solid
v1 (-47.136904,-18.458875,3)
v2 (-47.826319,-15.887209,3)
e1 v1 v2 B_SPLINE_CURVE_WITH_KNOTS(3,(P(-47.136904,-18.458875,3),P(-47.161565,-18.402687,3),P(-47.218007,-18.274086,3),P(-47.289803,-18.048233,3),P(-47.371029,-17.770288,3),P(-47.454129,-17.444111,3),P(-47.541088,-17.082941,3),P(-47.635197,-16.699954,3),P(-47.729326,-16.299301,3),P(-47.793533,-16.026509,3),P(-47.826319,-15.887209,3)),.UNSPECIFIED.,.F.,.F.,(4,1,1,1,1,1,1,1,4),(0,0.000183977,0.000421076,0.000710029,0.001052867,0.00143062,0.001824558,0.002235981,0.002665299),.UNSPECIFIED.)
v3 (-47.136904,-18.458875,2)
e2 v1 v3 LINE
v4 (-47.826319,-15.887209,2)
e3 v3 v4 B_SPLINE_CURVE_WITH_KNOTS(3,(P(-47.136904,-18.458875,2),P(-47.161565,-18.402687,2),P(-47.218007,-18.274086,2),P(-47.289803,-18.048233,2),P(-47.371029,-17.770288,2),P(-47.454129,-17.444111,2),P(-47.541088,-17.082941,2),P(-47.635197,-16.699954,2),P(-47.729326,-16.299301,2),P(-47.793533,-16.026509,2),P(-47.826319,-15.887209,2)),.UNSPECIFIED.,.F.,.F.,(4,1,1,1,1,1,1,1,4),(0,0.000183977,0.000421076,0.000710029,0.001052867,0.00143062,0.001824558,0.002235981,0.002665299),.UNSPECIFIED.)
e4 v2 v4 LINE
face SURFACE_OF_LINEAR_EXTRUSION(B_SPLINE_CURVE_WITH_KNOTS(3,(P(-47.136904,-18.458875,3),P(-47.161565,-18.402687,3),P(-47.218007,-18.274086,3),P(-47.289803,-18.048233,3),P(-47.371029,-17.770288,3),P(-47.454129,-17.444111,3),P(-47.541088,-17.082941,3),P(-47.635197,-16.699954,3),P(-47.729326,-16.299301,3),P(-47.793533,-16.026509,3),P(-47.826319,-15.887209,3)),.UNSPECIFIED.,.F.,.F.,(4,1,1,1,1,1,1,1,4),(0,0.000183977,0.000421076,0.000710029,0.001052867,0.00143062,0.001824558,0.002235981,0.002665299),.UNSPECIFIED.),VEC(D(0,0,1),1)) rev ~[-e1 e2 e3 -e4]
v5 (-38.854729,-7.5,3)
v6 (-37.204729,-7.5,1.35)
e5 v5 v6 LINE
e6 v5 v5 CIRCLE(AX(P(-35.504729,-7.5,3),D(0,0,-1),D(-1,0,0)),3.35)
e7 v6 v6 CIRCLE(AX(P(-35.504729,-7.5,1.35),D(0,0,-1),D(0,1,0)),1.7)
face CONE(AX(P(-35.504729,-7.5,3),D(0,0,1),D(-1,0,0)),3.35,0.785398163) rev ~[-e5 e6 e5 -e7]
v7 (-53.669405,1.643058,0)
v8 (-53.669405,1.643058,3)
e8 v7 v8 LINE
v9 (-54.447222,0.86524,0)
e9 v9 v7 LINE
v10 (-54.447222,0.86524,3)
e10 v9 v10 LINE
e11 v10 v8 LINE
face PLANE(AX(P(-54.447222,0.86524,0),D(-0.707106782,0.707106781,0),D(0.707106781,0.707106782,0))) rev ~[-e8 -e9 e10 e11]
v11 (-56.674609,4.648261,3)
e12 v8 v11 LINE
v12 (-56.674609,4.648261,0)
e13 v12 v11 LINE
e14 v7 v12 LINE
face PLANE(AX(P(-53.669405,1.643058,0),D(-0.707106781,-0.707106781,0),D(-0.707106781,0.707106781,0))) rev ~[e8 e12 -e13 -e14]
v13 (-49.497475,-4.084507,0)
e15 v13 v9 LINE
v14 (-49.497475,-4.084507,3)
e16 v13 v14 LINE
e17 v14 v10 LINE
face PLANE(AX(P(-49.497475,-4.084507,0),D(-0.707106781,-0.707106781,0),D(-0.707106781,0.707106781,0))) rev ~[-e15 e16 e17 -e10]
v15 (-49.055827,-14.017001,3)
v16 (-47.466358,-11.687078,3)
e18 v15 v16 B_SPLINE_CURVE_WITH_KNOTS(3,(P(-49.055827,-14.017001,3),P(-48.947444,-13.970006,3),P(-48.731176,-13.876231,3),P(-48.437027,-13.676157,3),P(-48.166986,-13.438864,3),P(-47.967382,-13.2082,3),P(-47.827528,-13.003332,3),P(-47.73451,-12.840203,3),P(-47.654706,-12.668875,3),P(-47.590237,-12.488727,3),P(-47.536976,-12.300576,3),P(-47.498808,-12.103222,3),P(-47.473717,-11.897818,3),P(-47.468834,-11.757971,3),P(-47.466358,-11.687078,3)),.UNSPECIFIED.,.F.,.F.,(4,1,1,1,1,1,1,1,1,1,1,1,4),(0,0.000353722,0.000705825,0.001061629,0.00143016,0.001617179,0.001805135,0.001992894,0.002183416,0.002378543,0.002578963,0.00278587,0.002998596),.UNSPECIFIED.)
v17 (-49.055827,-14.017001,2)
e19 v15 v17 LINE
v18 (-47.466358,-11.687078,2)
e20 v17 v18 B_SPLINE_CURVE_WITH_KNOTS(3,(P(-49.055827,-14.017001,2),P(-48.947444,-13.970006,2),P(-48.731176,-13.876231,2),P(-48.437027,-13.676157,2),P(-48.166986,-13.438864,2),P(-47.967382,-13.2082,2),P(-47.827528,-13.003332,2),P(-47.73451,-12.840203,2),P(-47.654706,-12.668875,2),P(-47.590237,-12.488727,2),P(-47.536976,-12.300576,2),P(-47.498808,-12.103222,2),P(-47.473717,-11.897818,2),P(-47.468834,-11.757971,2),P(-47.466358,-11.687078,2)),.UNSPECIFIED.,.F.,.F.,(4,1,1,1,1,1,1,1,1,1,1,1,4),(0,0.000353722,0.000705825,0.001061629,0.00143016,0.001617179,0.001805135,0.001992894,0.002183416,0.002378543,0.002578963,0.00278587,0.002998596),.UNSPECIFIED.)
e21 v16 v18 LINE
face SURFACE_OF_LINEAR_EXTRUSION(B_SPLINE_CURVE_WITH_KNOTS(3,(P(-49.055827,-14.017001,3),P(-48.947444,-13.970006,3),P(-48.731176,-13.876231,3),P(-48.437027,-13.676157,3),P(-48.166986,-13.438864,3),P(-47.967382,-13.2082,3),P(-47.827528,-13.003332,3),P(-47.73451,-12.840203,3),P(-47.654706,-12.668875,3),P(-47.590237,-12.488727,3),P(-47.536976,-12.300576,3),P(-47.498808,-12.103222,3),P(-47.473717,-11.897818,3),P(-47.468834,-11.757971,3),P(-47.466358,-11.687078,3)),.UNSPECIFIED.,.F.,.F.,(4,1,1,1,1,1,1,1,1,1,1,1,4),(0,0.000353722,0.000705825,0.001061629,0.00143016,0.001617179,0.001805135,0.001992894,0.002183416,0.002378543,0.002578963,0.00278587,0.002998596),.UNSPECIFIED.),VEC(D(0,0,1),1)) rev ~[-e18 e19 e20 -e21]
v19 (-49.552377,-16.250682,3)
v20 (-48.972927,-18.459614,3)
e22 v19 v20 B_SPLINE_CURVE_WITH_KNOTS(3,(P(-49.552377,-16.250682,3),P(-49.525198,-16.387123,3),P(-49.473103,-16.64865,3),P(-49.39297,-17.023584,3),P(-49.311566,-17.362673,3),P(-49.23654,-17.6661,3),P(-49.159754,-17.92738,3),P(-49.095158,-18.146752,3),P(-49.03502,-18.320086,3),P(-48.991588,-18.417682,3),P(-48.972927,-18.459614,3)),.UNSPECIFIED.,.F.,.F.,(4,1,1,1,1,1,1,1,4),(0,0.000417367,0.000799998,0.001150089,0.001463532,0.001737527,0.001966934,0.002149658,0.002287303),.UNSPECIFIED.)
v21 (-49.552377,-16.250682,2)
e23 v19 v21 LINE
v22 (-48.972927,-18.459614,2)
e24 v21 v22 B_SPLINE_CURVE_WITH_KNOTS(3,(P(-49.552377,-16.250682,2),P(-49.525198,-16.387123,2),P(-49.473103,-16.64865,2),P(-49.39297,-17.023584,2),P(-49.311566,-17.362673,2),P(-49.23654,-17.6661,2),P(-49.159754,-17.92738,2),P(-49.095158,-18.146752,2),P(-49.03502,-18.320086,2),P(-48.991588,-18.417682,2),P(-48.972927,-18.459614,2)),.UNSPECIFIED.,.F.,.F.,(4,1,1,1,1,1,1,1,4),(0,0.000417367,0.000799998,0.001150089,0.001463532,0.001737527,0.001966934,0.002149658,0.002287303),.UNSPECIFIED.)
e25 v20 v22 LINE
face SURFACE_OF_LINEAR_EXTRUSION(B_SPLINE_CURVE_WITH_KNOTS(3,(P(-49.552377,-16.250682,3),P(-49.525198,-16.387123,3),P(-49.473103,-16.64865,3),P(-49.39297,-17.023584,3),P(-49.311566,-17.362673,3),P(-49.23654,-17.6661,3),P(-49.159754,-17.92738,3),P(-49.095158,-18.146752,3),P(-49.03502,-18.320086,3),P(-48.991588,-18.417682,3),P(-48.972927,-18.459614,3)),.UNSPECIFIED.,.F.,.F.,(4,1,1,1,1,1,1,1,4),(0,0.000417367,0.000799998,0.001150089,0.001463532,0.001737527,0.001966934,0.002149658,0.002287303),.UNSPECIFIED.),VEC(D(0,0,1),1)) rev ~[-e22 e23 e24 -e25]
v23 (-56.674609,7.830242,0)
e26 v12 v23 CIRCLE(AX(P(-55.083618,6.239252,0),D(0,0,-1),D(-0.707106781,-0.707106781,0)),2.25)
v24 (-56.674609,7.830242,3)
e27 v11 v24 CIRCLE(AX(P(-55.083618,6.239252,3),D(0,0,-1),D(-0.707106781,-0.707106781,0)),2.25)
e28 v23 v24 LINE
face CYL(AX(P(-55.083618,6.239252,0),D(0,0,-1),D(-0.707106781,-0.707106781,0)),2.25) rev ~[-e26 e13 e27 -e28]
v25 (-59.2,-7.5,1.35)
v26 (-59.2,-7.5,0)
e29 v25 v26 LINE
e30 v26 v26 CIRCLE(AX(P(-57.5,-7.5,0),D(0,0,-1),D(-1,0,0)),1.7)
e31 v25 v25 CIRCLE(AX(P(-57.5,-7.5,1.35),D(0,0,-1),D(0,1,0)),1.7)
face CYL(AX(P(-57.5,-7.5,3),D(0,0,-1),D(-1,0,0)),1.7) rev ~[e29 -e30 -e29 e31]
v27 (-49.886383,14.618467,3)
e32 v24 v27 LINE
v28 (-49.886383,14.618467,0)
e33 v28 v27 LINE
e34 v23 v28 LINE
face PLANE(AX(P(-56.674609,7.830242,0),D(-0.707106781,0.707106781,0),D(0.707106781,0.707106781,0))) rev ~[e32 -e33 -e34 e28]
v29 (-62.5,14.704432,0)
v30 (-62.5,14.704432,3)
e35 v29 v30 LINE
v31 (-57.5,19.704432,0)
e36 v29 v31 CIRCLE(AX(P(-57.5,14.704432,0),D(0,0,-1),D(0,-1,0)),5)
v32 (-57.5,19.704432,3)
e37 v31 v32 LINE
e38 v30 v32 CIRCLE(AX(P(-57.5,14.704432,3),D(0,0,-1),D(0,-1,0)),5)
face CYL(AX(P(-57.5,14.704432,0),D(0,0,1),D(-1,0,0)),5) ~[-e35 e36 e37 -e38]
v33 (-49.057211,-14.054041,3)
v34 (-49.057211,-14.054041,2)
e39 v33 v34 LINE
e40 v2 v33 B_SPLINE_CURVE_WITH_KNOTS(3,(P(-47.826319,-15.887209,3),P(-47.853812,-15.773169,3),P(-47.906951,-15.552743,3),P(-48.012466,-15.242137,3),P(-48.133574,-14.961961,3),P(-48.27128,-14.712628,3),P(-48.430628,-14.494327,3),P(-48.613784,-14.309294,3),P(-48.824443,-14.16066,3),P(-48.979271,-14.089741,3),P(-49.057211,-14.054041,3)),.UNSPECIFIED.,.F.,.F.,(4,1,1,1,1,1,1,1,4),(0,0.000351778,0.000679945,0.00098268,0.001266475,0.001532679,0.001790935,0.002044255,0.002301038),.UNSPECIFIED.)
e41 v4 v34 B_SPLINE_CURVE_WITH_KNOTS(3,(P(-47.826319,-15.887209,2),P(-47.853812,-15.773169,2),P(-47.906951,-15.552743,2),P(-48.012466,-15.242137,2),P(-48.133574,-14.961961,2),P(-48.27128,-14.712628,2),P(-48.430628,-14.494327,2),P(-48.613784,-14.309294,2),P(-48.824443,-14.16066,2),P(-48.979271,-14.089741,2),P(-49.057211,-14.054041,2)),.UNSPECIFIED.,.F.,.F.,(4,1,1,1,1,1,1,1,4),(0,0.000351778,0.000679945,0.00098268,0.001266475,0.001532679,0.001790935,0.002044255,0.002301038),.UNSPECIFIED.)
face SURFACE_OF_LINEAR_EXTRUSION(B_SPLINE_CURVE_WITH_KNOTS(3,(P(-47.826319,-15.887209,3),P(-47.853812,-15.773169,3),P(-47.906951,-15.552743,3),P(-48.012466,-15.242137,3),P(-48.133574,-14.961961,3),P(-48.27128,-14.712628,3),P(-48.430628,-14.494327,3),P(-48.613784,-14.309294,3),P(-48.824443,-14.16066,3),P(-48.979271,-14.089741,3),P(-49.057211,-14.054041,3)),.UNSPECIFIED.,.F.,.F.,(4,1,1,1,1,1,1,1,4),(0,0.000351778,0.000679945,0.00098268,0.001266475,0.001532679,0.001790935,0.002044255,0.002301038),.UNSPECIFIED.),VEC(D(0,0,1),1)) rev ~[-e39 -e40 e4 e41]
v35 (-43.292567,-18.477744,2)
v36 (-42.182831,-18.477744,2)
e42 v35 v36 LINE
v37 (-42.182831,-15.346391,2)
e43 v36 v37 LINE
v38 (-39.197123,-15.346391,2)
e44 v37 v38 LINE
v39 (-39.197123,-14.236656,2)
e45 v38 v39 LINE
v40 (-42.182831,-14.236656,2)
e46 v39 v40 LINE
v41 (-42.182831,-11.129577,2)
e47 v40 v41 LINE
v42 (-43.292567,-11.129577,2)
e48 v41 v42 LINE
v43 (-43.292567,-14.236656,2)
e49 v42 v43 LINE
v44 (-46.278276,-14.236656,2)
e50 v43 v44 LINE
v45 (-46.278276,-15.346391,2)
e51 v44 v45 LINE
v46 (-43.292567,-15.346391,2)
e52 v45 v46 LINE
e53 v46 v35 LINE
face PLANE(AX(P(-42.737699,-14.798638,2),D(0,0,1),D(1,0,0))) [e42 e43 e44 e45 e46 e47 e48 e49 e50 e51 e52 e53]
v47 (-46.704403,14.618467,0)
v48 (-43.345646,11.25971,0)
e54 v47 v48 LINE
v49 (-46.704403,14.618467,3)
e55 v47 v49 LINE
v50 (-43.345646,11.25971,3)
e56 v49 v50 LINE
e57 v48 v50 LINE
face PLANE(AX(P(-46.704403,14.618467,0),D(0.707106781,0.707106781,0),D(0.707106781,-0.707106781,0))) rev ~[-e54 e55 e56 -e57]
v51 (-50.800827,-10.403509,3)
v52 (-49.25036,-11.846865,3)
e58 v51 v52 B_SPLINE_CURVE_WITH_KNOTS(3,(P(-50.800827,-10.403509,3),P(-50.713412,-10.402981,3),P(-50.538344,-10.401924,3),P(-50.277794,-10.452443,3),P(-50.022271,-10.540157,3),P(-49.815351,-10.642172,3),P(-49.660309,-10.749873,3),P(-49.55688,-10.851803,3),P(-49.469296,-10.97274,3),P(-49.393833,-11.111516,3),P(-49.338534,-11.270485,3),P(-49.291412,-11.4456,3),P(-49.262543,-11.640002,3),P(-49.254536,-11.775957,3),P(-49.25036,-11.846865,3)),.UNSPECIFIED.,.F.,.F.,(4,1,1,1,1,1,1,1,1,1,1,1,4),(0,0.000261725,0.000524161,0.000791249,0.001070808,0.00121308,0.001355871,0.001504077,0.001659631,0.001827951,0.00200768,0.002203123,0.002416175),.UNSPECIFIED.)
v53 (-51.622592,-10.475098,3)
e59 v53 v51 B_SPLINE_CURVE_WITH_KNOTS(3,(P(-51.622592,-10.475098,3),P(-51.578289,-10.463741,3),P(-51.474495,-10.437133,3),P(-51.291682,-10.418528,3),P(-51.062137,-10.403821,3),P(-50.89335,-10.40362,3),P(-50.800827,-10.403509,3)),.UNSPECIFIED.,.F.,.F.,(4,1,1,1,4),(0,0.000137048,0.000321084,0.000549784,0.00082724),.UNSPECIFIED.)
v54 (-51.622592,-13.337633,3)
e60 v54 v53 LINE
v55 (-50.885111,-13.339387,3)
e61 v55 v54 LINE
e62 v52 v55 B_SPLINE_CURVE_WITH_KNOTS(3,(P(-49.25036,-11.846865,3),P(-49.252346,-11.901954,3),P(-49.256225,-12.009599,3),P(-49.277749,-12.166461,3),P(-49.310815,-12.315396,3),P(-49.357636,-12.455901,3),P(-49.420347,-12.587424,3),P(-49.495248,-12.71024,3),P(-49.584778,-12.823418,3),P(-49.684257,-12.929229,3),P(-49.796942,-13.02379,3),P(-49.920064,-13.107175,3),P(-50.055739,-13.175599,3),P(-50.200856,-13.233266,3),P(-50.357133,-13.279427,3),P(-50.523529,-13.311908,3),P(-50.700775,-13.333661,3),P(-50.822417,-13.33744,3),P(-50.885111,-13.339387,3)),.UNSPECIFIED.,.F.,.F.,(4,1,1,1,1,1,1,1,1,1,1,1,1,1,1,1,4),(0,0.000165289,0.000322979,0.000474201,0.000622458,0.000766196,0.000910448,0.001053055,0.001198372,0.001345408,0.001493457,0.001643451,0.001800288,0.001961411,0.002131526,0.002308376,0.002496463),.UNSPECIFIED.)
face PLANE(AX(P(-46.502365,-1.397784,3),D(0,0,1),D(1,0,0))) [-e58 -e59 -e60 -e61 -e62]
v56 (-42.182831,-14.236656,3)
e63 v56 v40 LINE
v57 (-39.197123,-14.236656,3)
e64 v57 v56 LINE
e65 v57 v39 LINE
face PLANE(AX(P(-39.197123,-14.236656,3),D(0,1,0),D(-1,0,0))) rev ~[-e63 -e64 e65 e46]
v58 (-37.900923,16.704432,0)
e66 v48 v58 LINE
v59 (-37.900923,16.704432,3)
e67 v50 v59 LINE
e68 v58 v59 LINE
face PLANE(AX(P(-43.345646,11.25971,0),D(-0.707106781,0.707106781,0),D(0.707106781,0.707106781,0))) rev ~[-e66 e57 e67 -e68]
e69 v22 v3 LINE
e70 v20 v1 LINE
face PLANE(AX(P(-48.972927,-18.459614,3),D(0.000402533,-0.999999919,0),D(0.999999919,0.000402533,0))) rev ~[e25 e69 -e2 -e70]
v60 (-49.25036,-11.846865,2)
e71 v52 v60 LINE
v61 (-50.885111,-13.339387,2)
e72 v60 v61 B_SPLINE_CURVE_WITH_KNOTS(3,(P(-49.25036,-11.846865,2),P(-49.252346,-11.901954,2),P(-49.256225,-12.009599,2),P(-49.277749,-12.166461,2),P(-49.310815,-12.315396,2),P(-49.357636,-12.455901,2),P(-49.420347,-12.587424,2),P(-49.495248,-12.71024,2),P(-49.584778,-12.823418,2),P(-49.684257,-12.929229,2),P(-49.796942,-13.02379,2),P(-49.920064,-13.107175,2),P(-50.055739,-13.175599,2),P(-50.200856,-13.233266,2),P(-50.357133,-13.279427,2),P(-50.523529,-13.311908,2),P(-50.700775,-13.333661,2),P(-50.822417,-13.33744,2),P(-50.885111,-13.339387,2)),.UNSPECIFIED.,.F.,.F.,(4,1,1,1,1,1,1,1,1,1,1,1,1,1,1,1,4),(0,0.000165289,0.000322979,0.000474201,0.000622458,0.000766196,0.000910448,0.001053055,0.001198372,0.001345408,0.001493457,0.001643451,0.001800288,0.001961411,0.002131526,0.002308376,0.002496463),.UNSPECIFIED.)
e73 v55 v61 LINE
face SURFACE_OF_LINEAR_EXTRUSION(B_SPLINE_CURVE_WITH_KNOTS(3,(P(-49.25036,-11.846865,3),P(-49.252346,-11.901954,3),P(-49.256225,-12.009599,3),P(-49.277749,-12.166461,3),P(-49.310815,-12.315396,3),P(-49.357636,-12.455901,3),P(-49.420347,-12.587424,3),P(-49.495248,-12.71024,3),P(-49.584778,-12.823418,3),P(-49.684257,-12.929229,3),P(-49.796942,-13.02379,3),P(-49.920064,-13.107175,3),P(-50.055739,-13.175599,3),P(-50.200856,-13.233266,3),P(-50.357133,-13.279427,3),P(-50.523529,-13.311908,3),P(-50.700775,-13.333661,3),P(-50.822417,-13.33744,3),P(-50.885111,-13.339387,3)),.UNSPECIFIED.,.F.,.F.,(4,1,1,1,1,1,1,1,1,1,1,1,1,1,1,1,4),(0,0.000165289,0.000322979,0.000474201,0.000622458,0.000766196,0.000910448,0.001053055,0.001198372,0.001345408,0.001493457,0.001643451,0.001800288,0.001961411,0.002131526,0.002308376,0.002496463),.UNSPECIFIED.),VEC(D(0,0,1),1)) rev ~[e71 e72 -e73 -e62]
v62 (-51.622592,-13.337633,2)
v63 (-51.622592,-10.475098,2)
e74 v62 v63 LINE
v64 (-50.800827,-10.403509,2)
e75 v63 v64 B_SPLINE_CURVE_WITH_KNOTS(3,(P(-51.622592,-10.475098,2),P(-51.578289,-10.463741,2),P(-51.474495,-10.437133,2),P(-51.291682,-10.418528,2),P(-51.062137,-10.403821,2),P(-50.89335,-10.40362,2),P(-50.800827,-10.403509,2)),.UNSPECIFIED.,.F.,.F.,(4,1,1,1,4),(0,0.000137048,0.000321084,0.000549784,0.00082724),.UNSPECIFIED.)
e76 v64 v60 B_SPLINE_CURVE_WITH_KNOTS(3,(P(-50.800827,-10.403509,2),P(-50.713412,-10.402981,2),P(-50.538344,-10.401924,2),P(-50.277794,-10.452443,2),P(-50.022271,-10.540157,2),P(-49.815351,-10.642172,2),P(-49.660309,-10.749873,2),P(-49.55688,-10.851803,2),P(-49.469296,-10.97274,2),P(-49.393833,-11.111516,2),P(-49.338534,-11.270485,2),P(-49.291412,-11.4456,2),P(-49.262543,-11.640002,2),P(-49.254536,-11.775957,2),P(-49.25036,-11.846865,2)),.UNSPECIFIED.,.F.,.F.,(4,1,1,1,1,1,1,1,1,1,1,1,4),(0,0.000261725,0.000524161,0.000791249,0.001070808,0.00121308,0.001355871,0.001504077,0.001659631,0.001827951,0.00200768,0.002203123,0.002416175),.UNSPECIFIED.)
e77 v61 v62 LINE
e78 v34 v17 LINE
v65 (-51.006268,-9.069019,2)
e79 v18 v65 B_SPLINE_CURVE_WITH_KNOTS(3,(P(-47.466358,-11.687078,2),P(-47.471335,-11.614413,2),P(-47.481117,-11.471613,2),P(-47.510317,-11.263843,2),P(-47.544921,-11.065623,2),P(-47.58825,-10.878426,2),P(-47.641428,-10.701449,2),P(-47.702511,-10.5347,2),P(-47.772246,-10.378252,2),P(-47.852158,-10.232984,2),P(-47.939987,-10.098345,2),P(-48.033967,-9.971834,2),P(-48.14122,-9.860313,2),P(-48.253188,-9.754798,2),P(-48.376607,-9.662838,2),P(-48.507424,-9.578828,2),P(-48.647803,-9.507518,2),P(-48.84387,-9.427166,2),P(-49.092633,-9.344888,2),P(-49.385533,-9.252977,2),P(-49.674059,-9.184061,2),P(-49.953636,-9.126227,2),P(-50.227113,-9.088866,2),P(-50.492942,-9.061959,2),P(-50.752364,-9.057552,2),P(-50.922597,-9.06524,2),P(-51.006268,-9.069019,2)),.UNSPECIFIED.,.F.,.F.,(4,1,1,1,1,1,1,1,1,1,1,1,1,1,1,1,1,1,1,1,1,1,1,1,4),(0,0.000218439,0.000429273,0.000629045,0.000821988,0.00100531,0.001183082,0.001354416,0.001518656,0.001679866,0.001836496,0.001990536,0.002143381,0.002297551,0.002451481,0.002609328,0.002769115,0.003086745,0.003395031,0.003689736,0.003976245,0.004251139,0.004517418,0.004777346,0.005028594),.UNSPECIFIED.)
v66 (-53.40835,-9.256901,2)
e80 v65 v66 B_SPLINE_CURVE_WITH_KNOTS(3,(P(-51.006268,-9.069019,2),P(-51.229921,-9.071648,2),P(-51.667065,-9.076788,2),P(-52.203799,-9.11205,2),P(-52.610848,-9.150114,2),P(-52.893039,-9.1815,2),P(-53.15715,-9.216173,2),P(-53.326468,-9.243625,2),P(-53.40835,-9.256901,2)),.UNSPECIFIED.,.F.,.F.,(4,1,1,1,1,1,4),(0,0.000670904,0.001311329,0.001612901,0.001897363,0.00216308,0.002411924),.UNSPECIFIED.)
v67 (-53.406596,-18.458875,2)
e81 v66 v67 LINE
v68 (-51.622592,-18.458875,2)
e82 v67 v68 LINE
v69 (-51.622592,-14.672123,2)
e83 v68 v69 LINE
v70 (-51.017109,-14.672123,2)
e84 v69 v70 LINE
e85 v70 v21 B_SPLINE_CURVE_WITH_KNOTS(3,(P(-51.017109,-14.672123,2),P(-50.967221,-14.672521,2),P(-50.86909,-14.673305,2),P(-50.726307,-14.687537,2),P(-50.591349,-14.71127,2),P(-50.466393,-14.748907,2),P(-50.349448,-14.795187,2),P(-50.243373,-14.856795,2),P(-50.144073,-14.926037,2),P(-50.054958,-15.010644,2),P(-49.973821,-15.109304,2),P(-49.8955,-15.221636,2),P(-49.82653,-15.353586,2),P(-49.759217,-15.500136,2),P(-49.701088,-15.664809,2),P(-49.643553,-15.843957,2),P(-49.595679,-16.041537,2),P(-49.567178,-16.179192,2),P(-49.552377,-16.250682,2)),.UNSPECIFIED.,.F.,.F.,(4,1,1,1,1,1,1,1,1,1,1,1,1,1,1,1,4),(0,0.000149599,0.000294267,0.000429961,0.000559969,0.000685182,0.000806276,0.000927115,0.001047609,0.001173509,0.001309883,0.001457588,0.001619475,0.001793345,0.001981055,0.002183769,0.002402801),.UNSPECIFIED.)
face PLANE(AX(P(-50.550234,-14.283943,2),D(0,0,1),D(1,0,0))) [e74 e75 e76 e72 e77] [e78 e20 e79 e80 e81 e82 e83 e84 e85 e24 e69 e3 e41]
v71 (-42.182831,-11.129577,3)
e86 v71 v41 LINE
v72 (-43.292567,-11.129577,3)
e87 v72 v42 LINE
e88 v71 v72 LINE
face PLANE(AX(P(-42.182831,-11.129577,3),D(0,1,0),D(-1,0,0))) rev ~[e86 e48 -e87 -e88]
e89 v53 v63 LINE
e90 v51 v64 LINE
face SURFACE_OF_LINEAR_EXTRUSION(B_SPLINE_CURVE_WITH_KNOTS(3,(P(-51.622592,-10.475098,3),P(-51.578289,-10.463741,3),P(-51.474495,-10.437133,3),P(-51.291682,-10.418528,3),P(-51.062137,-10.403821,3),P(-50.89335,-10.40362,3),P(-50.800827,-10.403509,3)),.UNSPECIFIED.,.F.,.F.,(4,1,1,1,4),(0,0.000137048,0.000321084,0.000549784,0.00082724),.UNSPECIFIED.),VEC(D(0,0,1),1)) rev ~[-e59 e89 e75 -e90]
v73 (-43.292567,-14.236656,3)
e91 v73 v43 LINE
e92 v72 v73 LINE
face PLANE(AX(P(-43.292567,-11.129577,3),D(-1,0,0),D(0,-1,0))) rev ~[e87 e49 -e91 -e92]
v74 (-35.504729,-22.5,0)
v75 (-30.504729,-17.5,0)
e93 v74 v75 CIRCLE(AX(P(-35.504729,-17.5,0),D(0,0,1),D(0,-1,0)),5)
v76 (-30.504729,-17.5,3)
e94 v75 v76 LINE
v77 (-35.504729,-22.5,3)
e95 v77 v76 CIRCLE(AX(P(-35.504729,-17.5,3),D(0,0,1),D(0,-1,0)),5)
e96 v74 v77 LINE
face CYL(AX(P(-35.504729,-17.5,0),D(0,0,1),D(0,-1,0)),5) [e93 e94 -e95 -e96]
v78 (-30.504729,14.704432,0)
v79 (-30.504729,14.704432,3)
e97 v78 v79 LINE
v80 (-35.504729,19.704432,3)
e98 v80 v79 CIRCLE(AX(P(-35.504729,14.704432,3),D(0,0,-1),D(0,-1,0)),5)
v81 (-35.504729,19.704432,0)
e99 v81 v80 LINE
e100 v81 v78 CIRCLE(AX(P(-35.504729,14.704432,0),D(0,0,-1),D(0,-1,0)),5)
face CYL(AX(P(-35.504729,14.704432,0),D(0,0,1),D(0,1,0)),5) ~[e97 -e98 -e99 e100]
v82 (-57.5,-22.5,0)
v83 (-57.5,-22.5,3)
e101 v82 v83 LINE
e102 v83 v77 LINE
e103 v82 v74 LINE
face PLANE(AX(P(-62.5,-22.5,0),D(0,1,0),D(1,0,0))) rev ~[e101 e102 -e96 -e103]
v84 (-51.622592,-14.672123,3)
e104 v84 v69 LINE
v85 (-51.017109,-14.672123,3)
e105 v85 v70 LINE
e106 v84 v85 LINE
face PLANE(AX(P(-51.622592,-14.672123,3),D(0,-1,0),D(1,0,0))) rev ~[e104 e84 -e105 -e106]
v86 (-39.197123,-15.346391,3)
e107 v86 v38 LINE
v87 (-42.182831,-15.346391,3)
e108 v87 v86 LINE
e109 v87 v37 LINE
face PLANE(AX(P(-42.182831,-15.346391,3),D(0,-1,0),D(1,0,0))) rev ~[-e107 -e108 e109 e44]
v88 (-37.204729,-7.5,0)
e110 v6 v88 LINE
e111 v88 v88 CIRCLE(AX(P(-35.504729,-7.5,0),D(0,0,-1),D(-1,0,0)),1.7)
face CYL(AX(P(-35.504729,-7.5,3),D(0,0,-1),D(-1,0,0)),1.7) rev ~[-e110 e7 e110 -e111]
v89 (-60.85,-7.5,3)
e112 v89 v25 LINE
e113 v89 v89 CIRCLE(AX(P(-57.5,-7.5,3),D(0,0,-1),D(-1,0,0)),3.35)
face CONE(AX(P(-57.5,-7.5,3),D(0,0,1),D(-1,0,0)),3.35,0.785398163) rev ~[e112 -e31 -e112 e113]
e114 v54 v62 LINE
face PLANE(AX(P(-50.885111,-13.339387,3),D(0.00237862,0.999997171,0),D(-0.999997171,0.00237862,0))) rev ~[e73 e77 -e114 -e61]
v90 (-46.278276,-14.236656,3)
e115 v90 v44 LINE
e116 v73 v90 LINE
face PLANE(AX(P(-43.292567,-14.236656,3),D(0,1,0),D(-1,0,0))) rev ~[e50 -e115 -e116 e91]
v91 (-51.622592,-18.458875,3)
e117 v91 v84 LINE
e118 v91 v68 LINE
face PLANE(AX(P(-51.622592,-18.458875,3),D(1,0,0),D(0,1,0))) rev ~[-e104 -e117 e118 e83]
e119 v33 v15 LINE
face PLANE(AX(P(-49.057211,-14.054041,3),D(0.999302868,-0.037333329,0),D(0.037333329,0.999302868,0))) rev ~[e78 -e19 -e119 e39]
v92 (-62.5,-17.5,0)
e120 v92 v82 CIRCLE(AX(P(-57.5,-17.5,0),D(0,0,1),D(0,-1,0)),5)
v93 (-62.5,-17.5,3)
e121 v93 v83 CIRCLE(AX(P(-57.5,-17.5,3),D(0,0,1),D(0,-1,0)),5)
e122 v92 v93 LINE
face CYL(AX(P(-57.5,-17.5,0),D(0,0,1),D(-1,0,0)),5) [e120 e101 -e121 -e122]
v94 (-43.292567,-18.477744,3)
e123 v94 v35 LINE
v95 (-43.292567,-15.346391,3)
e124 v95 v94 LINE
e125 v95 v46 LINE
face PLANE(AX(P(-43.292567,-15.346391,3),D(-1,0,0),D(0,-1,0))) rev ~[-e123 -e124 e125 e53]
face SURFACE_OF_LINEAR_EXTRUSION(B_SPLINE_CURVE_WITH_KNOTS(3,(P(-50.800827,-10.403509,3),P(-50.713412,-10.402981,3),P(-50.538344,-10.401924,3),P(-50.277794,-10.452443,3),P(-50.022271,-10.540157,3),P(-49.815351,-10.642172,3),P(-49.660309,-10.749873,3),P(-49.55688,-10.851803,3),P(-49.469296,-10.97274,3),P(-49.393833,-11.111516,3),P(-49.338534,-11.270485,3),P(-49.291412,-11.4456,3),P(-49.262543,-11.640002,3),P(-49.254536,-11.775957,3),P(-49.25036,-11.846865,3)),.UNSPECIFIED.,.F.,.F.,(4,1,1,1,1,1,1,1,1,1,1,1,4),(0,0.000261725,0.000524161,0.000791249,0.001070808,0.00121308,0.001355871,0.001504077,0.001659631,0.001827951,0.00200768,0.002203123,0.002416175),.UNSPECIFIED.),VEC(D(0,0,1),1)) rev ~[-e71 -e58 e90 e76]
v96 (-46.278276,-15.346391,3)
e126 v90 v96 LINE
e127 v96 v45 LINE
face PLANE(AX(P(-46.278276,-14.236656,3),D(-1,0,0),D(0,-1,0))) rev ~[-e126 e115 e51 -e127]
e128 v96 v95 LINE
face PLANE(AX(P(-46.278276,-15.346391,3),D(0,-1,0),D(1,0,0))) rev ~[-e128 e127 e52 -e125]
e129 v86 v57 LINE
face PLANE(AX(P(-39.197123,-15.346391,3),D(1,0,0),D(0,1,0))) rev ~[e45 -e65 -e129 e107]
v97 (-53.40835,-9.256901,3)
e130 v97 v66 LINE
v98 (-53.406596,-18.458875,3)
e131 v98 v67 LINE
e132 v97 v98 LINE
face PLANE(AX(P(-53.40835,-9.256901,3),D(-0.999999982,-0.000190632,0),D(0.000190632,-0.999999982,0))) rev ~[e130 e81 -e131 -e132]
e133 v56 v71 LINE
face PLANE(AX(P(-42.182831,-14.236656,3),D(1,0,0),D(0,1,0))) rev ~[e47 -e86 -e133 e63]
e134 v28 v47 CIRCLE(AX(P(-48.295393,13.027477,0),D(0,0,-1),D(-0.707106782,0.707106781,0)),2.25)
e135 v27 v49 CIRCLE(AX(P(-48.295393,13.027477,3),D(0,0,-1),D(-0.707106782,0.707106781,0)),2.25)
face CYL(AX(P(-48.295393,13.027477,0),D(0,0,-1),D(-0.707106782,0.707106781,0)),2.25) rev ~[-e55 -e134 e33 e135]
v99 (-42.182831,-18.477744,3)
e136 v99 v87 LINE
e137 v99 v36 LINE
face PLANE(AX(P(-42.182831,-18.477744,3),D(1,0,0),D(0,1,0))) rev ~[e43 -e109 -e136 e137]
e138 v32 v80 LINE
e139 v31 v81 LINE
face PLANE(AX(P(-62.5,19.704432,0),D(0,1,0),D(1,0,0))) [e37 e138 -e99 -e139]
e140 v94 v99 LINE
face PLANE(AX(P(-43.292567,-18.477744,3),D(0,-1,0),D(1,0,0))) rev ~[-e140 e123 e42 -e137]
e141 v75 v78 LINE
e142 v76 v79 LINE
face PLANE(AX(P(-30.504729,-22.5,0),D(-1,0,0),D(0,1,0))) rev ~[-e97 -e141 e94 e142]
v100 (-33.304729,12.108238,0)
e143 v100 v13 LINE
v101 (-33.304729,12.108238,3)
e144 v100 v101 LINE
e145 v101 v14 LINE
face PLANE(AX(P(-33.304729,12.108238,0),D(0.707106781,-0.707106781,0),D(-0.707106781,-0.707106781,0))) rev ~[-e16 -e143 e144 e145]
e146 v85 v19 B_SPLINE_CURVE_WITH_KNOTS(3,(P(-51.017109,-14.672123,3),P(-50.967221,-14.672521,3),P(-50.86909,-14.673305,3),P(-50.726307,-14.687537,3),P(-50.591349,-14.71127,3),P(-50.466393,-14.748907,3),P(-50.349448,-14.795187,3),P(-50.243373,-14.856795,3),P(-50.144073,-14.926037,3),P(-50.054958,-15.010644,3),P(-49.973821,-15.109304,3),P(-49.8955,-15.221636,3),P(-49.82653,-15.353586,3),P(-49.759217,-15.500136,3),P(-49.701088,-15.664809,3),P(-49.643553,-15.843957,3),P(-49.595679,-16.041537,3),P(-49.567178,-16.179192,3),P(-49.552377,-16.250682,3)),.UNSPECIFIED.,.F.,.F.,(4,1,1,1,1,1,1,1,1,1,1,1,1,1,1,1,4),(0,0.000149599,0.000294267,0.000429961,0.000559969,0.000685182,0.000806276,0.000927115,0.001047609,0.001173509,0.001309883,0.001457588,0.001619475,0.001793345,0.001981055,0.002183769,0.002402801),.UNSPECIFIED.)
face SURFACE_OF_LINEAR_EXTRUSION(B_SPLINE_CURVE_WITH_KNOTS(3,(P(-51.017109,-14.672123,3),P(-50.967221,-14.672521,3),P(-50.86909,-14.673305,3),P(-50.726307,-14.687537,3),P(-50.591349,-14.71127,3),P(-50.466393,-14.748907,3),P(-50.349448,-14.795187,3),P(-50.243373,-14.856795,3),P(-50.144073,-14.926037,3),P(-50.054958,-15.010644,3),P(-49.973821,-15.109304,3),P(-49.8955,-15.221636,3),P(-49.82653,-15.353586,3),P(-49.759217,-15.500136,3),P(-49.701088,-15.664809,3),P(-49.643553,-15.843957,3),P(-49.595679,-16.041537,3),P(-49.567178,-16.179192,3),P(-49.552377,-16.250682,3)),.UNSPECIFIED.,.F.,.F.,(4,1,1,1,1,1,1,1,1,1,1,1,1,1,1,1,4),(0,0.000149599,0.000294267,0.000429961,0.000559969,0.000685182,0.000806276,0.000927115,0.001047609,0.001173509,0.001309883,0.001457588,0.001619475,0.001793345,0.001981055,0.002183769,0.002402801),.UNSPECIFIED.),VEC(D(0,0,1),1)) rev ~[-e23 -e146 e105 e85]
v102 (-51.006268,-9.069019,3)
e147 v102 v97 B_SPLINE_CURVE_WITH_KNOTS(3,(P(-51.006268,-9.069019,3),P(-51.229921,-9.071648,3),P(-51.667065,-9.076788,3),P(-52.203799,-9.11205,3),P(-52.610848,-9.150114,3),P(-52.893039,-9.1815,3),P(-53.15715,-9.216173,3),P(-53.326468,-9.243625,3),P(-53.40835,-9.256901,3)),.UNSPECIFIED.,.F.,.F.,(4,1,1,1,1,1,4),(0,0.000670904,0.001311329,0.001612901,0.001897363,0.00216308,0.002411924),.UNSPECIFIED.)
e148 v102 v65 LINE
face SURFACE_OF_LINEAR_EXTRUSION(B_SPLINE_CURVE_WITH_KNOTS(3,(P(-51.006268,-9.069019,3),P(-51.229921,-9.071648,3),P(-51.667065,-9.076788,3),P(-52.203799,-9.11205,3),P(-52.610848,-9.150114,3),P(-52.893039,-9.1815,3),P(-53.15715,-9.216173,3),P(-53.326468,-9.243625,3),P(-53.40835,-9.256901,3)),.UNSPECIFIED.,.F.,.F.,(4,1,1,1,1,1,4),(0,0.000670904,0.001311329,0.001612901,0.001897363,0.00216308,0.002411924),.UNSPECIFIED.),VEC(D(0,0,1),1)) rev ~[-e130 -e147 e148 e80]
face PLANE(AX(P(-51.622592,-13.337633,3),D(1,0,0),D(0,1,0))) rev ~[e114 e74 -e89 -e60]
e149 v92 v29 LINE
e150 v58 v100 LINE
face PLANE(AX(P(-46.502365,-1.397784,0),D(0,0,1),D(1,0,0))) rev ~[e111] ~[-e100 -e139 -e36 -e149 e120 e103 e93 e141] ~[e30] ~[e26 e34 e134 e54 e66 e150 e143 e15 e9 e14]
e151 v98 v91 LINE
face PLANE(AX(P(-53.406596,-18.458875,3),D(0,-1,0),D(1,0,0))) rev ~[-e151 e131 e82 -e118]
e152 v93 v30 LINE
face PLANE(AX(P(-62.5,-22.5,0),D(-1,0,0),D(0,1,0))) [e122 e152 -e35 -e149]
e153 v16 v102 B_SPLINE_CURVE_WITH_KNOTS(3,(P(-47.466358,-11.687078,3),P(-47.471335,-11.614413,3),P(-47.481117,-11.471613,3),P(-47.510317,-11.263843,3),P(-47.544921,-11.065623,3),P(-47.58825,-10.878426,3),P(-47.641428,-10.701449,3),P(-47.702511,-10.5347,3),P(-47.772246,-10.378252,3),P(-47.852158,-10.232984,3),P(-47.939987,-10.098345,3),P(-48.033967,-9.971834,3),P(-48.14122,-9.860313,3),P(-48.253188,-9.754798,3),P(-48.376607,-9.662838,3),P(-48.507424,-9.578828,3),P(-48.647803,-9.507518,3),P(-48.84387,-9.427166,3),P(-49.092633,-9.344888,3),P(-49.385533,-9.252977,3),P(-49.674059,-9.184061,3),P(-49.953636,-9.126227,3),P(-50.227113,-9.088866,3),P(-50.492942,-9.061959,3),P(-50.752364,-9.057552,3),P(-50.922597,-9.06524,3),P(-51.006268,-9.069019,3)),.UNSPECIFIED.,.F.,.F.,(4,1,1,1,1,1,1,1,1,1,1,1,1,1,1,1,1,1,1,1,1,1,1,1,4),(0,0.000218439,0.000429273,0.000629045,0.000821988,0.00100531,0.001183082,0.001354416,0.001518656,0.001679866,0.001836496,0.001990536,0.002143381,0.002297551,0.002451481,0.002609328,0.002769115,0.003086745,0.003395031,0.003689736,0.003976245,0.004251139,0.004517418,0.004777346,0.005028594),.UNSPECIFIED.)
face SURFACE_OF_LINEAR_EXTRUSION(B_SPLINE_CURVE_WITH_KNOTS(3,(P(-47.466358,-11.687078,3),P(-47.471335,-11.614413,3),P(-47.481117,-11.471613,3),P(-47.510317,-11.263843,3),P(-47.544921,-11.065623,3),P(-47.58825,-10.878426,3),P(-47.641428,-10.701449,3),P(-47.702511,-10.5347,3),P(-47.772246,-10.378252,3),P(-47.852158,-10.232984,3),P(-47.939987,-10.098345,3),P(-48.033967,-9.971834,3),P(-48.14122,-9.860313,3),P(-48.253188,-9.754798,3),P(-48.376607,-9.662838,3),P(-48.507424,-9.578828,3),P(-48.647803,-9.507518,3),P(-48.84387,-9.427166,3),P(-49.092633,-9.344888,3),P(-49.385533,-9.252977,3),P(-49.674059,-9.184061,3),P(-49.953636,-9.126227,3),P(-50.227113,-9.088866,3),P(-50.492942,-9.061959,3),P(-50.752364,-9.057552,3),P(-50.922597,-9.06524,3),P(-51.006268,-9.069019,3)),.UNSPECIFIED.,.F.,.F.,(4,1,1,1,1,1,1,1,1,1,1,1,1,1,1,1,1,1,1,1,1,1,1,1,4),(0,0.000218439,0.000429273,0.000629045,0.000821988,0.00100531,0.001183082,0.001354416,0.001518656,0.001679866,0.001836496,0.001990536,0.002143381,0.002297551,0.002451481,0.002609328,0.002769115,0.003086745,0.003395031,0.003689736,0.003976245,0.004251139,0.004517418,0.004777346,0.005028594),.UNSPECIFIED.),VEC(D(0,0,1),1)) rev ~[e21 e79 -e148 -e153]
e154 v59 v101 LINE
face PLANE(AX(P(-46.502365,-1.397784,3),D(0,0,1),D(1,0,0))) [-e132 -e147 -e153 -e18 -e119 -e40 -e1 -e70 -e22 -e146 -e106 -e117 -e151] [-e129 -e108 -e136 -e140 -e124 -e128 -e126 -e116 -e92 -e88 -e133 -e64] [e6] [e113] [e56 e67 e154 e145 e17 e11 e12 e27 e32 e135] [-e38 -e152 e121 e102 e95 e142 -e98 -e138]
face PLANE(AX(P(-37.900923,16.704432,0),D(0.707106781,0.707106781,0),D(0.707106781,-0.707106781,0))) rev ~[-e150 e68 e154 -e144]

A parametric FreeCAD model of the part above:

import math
import FreeCAD as App
import Part
import Sketcher
from FreeCAD import Vector


def edges_at(feature, points):
    """Names of the edges that pass closest to the given points."""
    edges = feature.Shape.Edges
    near = lambda p: min(range(len(edges)), key=lambda i: edges[i].distToShape(Part.Vertex(*p))[0])
    return sorted({f"Edge{near(p) + 1}" for p in points})

doc = App.newDocument("Part")
params = doc.addObject("Spreadsheet::Sheet", "Params")
for row, (alias, value) in enumerate([
    ("sketch1_radius", "2.25 mm"),
    ("sketch1_length", "7 mm"),
    ("sketch1_length2", "7.7 mm"),
    ("sketch1_length3", "6.5 mm"),
    ("sketch1_length4", "22.9 mm"),
    ("pad1_length", "3 mm"),
    ("fillet_radius", "5 mm"),
    ("pocket1_length", "1 mm"),
    ("sketch3_diameter", "3.4 mm"),
    ("hole_diameter", "3.4 mm"),
    ("hole_depth", "20 mm"),
    ("hole_csink_diameter", "6.7 mm"),
], start=1):
    params.set(f"A{row}", alias)
    params.set(f"B{row}", "=" + value)
    params.setAlias(f"B{row}", alias)

body = doc.addObject("PartDesign::Body", "Body")

# Sketch on XY plane
sketch1 = body.newObject("Sketcher::SketchObject", "Sketch")
sketch1.AttachmentSupport = (doc.getObject("XY_Plane"), [""])
sketch1.MapMode = "FlatFace"
sketch1.addGeometry([
    Part.LineSegment(Vector(-62.5, 19.7, 0), Vector(-62.5, -22.5, 0)),  # 0
    Part.LineSegment(Vector(-62.5, -22.5, 0), Vector(-30.5, -22.5, 0)),  # 1
    Part.LineSegment(Vector(-30.5, -22.5, 0), Vector(-30.5, 19.7, 0)),  # 2
    Part.LineSegment(Vector(-30.5, 19.7, 0), Vector(-62.5, 19.7, 0)),  # 3
    Part.LineSegment(Vector(-46.7, 14.6, 0), Vector(-43.3, 11.3, 0)),  # 4
    Part.LineSegment(Vector(-43.3, 11.3, 0), Vector(-37.9, 16.7, 0)),  # 5
    Part.LineSegment(Vector(-37.9, 16.7, 0), Vector(-33.3, 12.1, 0)),  # 6
    Part.LineSegment(Vector(-33.3, 12.1, 0), Vector(-49.5, -4.1, 0)),  # 7
    Part.LineSegment(Vector(-49.5, -4.1, 0), Vector(-54.4, 0.9, 0)),  # 8
    Part.LineSegment(Vector(-54.4, 0.9, 0), Vector(-53.7, 1.6, 0)),  # 9
    Part.LineSegment(Vector(-53.7, 1.6, 0), Vector(-56.7, 4.6, 0)),  # 10
    Part.ArcOfCircle(Part.Circle(Vector(-55.1, 6.2, 0), Vector(0, 0, 1), 2.2), math.radians(135), math.radians(225)),  # 11
    Part.LineSegment(Vector(-56.7, 7.8, 0), Vector(-49.9, 14.6, 0)),  # 12
    Part.ArcOfCircle(Part.Circle(Vector(-48.3, 13, 0), Vector(0, 0, 1), 2.2), math.radians(45), math.radians(135)),  # 13
], False)
sketch1.addConstraint([
    Sketcher.Constraint("Coincident", 0, 2, 1, 1),
    Sketcher.Constraint("Coincident", 1, 2, 2, 1),
    Sketcher.Constraint("Coincident", 2, 2, 3, 1),
    Sketcher.Constraint("Coincident", 3, 2, 0, 1),
    Sketcher.Constraint("Coincident", 4, 2, 5, 1),
    Sketcher.Constraint("Coincident", 5, 2, 6, 1),
    Sketcher.Constraint("Coincident", 6, 2, 7, 1),
    Sketcher.Constraint("Coincident", 7, 2, 8, 1),
    Sketcher.Constraint("Coincident", 8, 2, 9, 1),
    Sketcher.Constraint("Coincident", 9, 2, 10, 1),
    Sketcher.Constraint("Tangent", 10, 2, 11, 2),
    Sketcher.Constraint("Tangent", 11, 1, 12, 1),
    Sketcher.Constraint("Tangent", 12, 2, 13, 2),
    Sketcher.Constraint("Tangent", 13, 1, 4, 1),
    Sketcher.Constraint("Vertical", 0),
    Sketcher.Constraint("Horizontal", 1),
    Sketcher.Constraint("Vertical", 2),
    Sketcher.Constraint("Horizontal", 3),
    Sketcher.Constraint("Equal", 11, 13),
    Sketcher.Constraint("Perpendicular", 4, 5),
    Sketcher.Constraint("Perpendicular", 5, 6),
    Sketcher.Constraint("Perpendicular", 6, 7),
    Sketcher.Constraint("Perpendicular", 7, 8),
    Sketcher.Constraint("Perpendicular", 8, 9),
    Sketcher.Constraint("Perpendicular", 9, 10),
    Sketcher.Constraint("Perpendicular", 10, 12),
    Sketcher.Constraint("Horizontal", 12, 2, 13, 1),
    Sketcher.Constraint("Radius", 11, 2.25),
    Sketcher.Constraint("Distance", 8, 7.0),
    Sketcher.Constraint("DistanceY", 5, 2, 2, 2, 3.0),
    Sketcher.Constraint("Distance", 5, 7.7),
    Sketcher.Constraint("Distance", 6, 6.5),
    Sketcher.Constraint("Distance", 7, 22.9),
    Sketcher.Constraint("Distance", 9, 1.1),
    Sketcher.Constraint("DistanceX", 0, 2, -1, 1, 62.5),
    Sketcher.Constraint("DistanceY", 0, 2, -1, 1, 22.5),
    Sketcher.Constraint("DistanceX", 6, 2, 2, 2, 2.8),
    Sketcher.Constraint("Distance", 4, 4.75),
    Sketcher.Constraint("DistanceX", 1, 1, 1, 2, 31.995271),
    Sketcher.Constraint("DistanceY", 0, 2, 0, 1, 42.204432),
])
sketch1.setExpression("Constraints[27]", "Params.sketch1_radius")
sketch1.setExpression("Constraints[28]", "Params.sketch1_length")
sketch1.setExpression("Constraints[30]", "Params.sketch1_length2")
sketch1.setExpression("Constraints[31]", "Params.sketch1_length3")
sketch1.setExpression("Constraints[32]", "Params.sketch1_length4")
pad1 = body.newObject("PartDesign::Pad", "Pad")
pad1.Profile = sketch1
pad1.setExpression("Length", "Params.pad1_length")
doc.recompute()

fillet = body.newObject("PartDesign::Fillet", "Fillet")
fillet.Base = (pad1, edges_at(pad1, [
    (-62.5, 19.704, 1.5),
    (-30.505, 19.704, 1.5),
    (-30.505, -22.5, 1.5),
    (-62.5, -22.5, 1.5),
]))
fillet.setExpression("Radius", "Params.fillet_radius")

# Sketch on XY plane
sketch2 = body.newObject("Sketcher::SketchObject", "Sketch001")
sketch2.AttachmentSupport = (doc.getObject("XY_Plane"), [""])
sketch2.MapMode = "FlatFace"
sketch2.AttachmentOffset = App.Placement(Vector(0, 0, 3), App.Rotation())
sketch2.addGeometry([
    Part.LineSegment(Vector(-53.406596, -18.458875, 0), Vector(-51.622592, -18.458875, 0)),  # 0
    Part.LineSegment(Vector(-51.622592, -18.458875, 0), Vector(-51.622592, -14.672123, 0)),  # 1
    Part.LineSegment(Vector(-51.622592, -14.672123, 0), Vector(-51.017109, -14.672123, 0)),  # 2
    Part.BSplineCurve([Vector(-51.017109, -14.672123, 0), Vector(-50.967221, -14.672521, 0), Vector(-50.86909, -14.673305, 0), Vector(-50.726307, -14.687537, 0), Vector(-50.591349, -14.71127, 0), Vector(-50.466393, -14.748907, 0), Vector(-50.349448, -14.795187, 0), Vector(-50.243373, -14.856795, 0), Vector(-50.144073, -14.926037, 0), Vector(-50.054958, -15.010644, 0), Vector(-49.973821, -15.109304, 0), Vector(-49.8955, -15.221636, 0), Vector(-49.82653, -15.353586, 0), Vector(-49.759217, -15.500136, 0), Vector(-49.701088, -15.664809, 0), Vector(-49.643553, -15.843957, 0), Vector(-49.595679, -16.041537, 0), Vector(-49.567178, -16.179192, 0), Vector(-49.552377, -16.250682, 0)], [4, 1, 1, 1, 1, 1, 1, 1, 1, 1, 1, 1, 1, 1, 1, 1, 4], [0, 0.000149599, 0.000294267, 0.000429961, 0.000559969, 0.000685182, 0.000806276, 0.000927115, 0.001047609, 0.001173509, 0.001309883, 0.001457588, 0.001619475, 0.001793345, 0.001981055, 0.002183769, 0.002402801], False, 3, [1, 1, 1, 1, 1, 1, 1, 1, 1, 1, 1, 1, 1, 1, 1, 1, 1, 1, 1], False),  # 3
    Part.BSplineCurve([Vector(-49.552377, -16.250682, 0), Vector(-49.525198, -16.387123, 0), Vector(-49.473103, -16.64865, 0), Vector(-49.39297, -17.023584, 0), Vector(-49.311566, -17.362673, 0), Vector(-49.23654, -17.6661, 0), Vector(-49.159754, -17.92738, 0), Vector(-49.095158, -18.146752, 0), Vector(-49.03502, -18.320086, 0), Vector(-48.991588, -18.417682, 0), Vector(-48.972927, -18.459614, 0)], [4, 1, 1, 1, 1, 1, 1, 1, 4], [0, 0.000417367, 0.000799998, 0.001150089, 0.001463532, 0.001737527, 0.001966934, 0.002149658, 0.002287303], False, 3, [1, 1, 1, 1, 1, 1, 1, 1, 1, 1, 1], False),  # 4
    Part.LineSegment(Vector(-48.972927, -18.459614, 0), Vector(-47.136904, -18.458875, 0)),  # 5
    Part.BSplineCurve([Vector(-47.136904, -18.458875, 0), Vector(-47.161565, -18.402687, 0), Vector(-47.218007, -18.274086, 0), Vector(-47.289803, -18.048233, 0), Vector(-47.371029, -17.770288, 0), Vector(-47.454129, -17.444111, 0), Vector(-47.541088, -17.082941, 0), Vector(-47.635197, -16.699954, 0), Vector(-47.729326, -16.299301, 0), Vector(-47.793533, -16.026509, 0), Vector(-47.826319, -15.887209, 0)], [4, 1, 1, 1, 1, 1, 1, 1, 4], [0, 0.000183977, 0.000421076, 0.000710029, 0.001052867, 0.00143062, 0.001824558, 0.002235981, 0.002665299], False, 3, [1, 1, 1, 1, 1, 1, 1, 1, 1, 1, 1], False),  # 6
    Part.BSplineCurve([Vector(-47.826319, -15.887209, 0), Vector(-47.853812, -15.773169, 0), Vector(-47.906951, -15.552743, 0), Vector(-48.012466, -15.242137, 0), Vector(-48.133574, -14.961961, 0), Vector(-48.27128, -14.712628, 0), Vector(-48.430628, -14.494327, 0), Vector(-48.613784, -14.309294, 0), Vector(-48.824443, -14.16066, 0), Vector(-48.979271, -14.089741, 0), Vector(-49.057211, -14.054041, 0)], [4, 1, 1, 1, 1, 1, 1, 1, 4], [0, 0.000351778, 0.000679945, 0.00098268, 0.001266475, 0.001532679, 0.001790935, 0.002044255, 0.002301038], False, 3, [1, 1, 1, 1, 1, 1, 1, 1, 1, 1, 1], False),  # 7
    Part.LineSegment(Vector(-49.057211, -14.054041, 0), Vector(-49.055827, -14.017001, 0)),  # 8
    Part.BSplineCurve([Vector(-49.055827, -14.017001, 0), Vector(-48.947444, -13.970006, 0), Vector(-48.731176, -13.876231, 0), Vector(-48.437027, -13.676157, 0), Vector(-48.166986, -13.438864, 0), Vector(-47.967382, -13.2082, 0), Vector(-47.827528, -13.003332, 0), Vector(-47.73451, -12.840203, 0), Vector(-47.654706, -12.668875, 0), Vector(-47.590237, -12.488727, 0), Vector(-47.536976, -12.300576, 0), Vector(-47.498808, -12.103222, 0), Vector(-47.473717, -11.897818, 0), Vector(-47.468834, -11.757971, 0), Vector(-47.466358, -11.687078, 0)], [4, 1, 1, 1, 1, 1, 1, 1, 1, 1, 1, 1, 4], [0, 0.000353722, 0.000705825, 0.001061629, 0.00143016, 0.001617179, 0.001805135, 0.001992894, 0.002183416, 0.002378543, 0.002578963, 0.00278587, 0.002998596], False, 3, [1, 1, 1, 1, 1, 1, 1, 1, 1, 1, 1, 1, 1, 1, 1], False),  # 9
    Part.BSplineCurve([Vector(-47.466358, -11.687078, 0), Vector(-47.471335, -11.614413, 0), Vector(-47.481117, -11.471613, 0), Vector(-47.510317, -11.263843, 0), Vector(-47.544921, -11.065623, 0), Vector(-47.58825, -10.878426, 0), Vector(-47.641428, -10.701449, 0), Vector(-47.702511, -10.5347, 0), Vector(-47.772246, -10.378252, 0), Vector(-47.852158, -10.232984, 0), Vector(-47.939987, -10.098345, 0), Vector(-48.033967, -9.971834, 0), Vector(-48.14122, -9.860313, 0), Vector(-48.253188, -9.754798, 0), Vector(-48.376607, -9.662838, 0), Vector(-48.507424, -9.578828, 0), Vector(-48.647803, -9.507518, 0), Vector(-48.84387, -9.427166, 0), Vector(-49.092633, -9.344888, 0), Vector(-49.385533, -9.252977, 0), Vector(-49.674059, -9.184061, 0), Vector(-49.953636, -9.126227, 0), Vector(-50.227113, -9.088866, 0), Vector(-50.492942, -9.061959, 0), Vector(-50.752364, -9.057552, 0), Vector(-50.922597, -9.06524, 0), Vector(-51.006268, -9.069019, 0)], [4, 1, 1, 1, 1, 1, 1, 1, 1, 1, 1, 1, 1, 1, 1, 1, 1, 1, 1, 1, 1, 1, 1, 1, 4], [0, 0.000218439, 0.000429273, 0.000629045, 0.000821988, 0.00100531, 0.001183082, 0.001354416, 0.001518656, 0.001679866, 0.001836496, 0.001990536, 0.002143381, 0.002297551, 0.002451481, 0.002609328, 0.002769115, 0.003086745, 0.003395031, 0.003689736, 0.003976245, 0.004251139, 0.004517418, 0.004777346, 0.005028594], False, 3, [1, 1, 1, 1, 1, 1, 1, 1, 1, 1, 1, 1, 1, 1, 1, 1, 1, 1, 1, 1, 1, 1, 1, 1, 1, 1, 1], False),  # 10
    Part.BSplineCurve([Vector(-51.006268, -9.069019, 0), Vector(-51.229921, -9.071648, 0), Vector(-51.667065, -9.076788, 0), Vector(-52.203799, -9.11205, 0), Vector(-52.610848, -9.150114, 0), Vector(-52.893039, -9.1815, 0), Vector(-53.15715, -9.216173, 0), Vector(-53.326468, -9.243625, 0), Vector(-53.40835, -9.256901, 0)], [4, 1, 1, 1, 1, 1, 4], [0, 0.000670904, 0.001311329, 0.001612901, 0.001897363, 0.00216308, 0.002411924], False, 3, [1, 1, 1, 1, 1, 1, 1, 1, 1], False),  # 11
    Part.LineSegment(Vector(-53.40835, -9.256901, 0), Vector(-53.406596, -18.458875, 0)),  # 12
    Part.LineSegment(Vector(-51.622592, -13.337633, 0), Vector(-51.622592, -10.475098, 0)),  # 13
    Part.BSplineCurve([Vector(-51.622592, -10.475098, 0), Vector(-51.578289, -10.463741, 0), Vector(-51.474495, -10.437133, 0), Vector(-51.291682, -10.418528, 0), Vector(-51.062137, -10.403821, 0), Vector(-50.89335, -10.40362, 0), Vector(-50.800827, -10.403509, 0)], [4, 1, 1, 1, 4], [0, 0.000137048, 0.000321084, 0.000549784, 0.00082724], False, 3, [1, 1, 1, 1, 1, 1, 1], False),  # 14
    Part.BSplineCurve([Vector(-50.800827, -10.403509, 0), Vector(-50.713412, -10.402981, 0), Vector(-50.538344, -10.401924, 0), Vector(-50.277794, -10.452443, 0), Vector(-50.022271, -10.540157, 0), Vector(-49.815351, -10.642172, 0), Vector(-49.660309, -10.749873, 0), Vector(-49.55688, -10.851803, 0), Vector(-49.469296, -10.97274, 0), Vector(-49.393833, -11.111516, 0), Vector(-49.338534, -11.270485, 0), Vector(-49.291412, -11.4456, 0), Vector(-49.262543, -11.640002, 0), Vector(-49.254536, -11.775957, 0), Vector(-49.25036, -11.846865, 0)], [4, 1, 1, 1, 1, 1, 1, 1, 1, 1, 1, 1, 4], [0, 0.000261725, 0.000524161, 0.000791249, 0.001070808, 0.00121308, 0.001355871, 0.001504077, 0.001659631, 0.001827951, 0.00200768, 0.002203123, 0.002416175], False, 3, [1, 1, 1, 1, 1, 1, 1, 1, 1, 1, 1, 1, 1, 1, 1], False),  # 15
    Part.BSplineCurve([Vector(-49.25036, -11.846865, 0), Vector(-49.252346, -11.901954, 0), Vector(-49.256225, -12.009599, 0), Vector(-49.277749, -12.166461, 0), Vector(-49.310815, -12.315396, 0), Vector(-49.357636, -12.455901, 0), Vector(-49.420347, -12.587424, 0), Vector(-49.495248, -12.71024, 0), Vector(-49.584778, -12.823418, 0), Vector(-49.684257, -12.929229, 0), Vector(-49.796942, -13.02379, 0), Vector(-49.920064, -13.107175, 0), Vector(-50.055739, -13.175599, 0), Vector(-50.200856, -13.233266, 0), Vector(-50.357133, -13.279427, 0), Vector(-50.523529, -13.311908, 0), Vector(-50.700775, -13.333661, 0), Vector(-50.822417, -13.33744, 0), Vector(-50.885111, -13.339387, 0)], [4, 1, 1, 1, 1, 1, 1, 1, 1, 1, 1, 1, 1, 1, 1, 1, 4], [0, 0.000165289, 0.000322979, 0.000474201, 0.000622458, 0.000766196, 0.000910448, 0.001053055, 0.001198372, 0.001345408, 0.001493457, 0.001643451, 0.001800288, 0.001961411, 0.002131526, 0.002308376, 0.002496463], False, 3, [1, 1, 1, 1, 1, 1, 1, 1, 1, 1, 1, 1, 1, 1, 1, 1, 1, 1, 1], False),  # 16
    Part.LineSegment(Vector(-50.885111, -13.339387, 0), Vector(-51.622592, -13.337633, 0)),  # 17
    Part.LineSegment(Vector(-46.278276, -14.236656, 0), Vector(-46.278276, -15.346391, 0)),  # 18
    Part.LineSegment(Vector(-46.278276, -15.346391, 0), Vector(-43.292567, -15.346391, 0)),  # 19
    Part.LineSegment(Vector(-43.292567, -15.346391, 0), Vector(-43.292567, -18.477744, 0)),  # 20
    Part.LineSegment(Vector(-43.292567, -18.477744, 0), Vector(-42.182831, -18.477744, 0)),  # 21
    Part.LineSegment(Vector(-42.182831, -18.477744, 0), Vector(-42.182831, -15.346391, 0)),  # 22
    Part.LineSegment(Vector(-42.182831, -15.346391, 0), Vector(-39.197123, -15.346391, 0)),  # 23
    Part.LineSegment(Vector(-39.197123, -15.346391, 0), Vector(-39.197123, -14.236656, 0)),  # 24
    Part.LineSegment(Vector(-39.197123, -14.236656, 0), Vector(-42.182831, -14.236656, 0)),  # 25
    Part.LineSegment(Vector(-42.182831, -14.236656, 0), Vector(-42.182831, -11.129577, 0)),  # 26
    Part.LineSegment(Vector(-42.182831, -11.129577, 0), Vector(-43.292567, -11.129577, 0)),  # 27
    Part.LineSegment(Vector(-43.292567, -11.129577, 0), Vector(-43.292567, -14.236656, 0)),  # 28
    Part.LineSegment(Vector(-43.292567, -14.236656, 0), Vector(-46.278276, -14.236656, 0)),  # 29
], False)
sketch2.addConstraint([
    Sketcher.Constraint("Block", 3),
    Sketcher.Constraint("Block", 4),
    Sketcher.Constraint("Block", 6),
    Sketcher.Constraint("Block", 7),
    Sketcher.Constraint("Block", 9),
    Sketcher.Constraint("Block", 10),
    Sketcher.Constraint("Block", 11),
    Sketcher.Constraint("Block", 14),
    Sketcher.Constraint("Block", 15),
    Sketcher.Constraint("Block", 16),
    Sketcher.Constraint("Coincident", 0, 2, 1, 1),
    Sketcher.Constraint("Coincident", 1, 2, 2, 1),
    Sketcher.Constraint("Coincident", 2, 2, 3, 1),
    Sketcher.Constraint("Coincident", 4, 2, 5, 1),
    Sketcher.Constraint("Coincident", 5, 2, 6, 1),
    Sketcher.Constraint("Coincident", 7, 2, 8, 1),
    Sketcher.Constraint("Coincident", 8, 2, 9, 1),
    Sketcher.Constraint("Coincident", 11, 2, 12, 1),
    Sketcher.Constraint("Coincident", 12, 2, 0, 1),
    Sketcher.Constraint("Coincident", 13, 2, 14, 1),
    Sketcher.Constraint("Coincident", 16, 2, 17, 1),
    Sketcher.Constraint("Coincident", 17, 2, 13, 1),
    Sketcher.Constraint("Coincident", 18, 2, 19, 1),
    Sketcher.Constraint("Coincident", 19, 2, 20, 1),
    Sketcher.Constraint("Coincident", 20, 2, 21, 1),
    Sketcher.Constraint("Coincident", 21, 2, 22, 1),
    Sketcher.Constraint("Coincident", 22, 2, 23, 1),
    Sketcher.Constraint("Coincident", 23, 2, 24, 1),
    Sketcher.Constraint("Coincident", 24, 2, 25, 1),
    Sketcher.Constraint("Coincident", 25, 2, 26, 1),
    Sketcher.Constraint("Coincident", 26, 2, 27, 1),
    Sketcher.Constraint("Coincident", 27, 2, 28, 1),
    Sketcher.Constraint("Coincident", 28, 2, 29, 1),
    Sketcher.Constraint("Coincident", 29, 2, 18, 1),
    Sketcher.Constraint("Horizontal", 0),
    Sketcher.Constraint("Vertical", 1),
    Sketcher.Constraint("Horizontal", 2),
    Sketcher.Constraint("Vertical", 13),
    Sketcher.Constraint("Vertical", 18),
    Sketcher.Constraint("Horizontal", 19),
    Sketcher.Constraint("Vertical", 20),
    Sketcher.Constraint("Horizontal", 21),
    Sketcher.Constraint("Vertical", 22),
    Sketcher.Constraint("Horizontal", 23),
    Sketcher.Constraint("Vertical", 24),
    Sketcher.Constraint("Horizontal", 25),
    Sketcher.Constraint("Vertical", 26),
    Sketcher.Constraint("Horizontal", 27),
    Sketcher.Constraint("Vertical", 28),
    Sketcher.Constraint("Horizontal", 29),
    Sketcher.Constraint("Horizontal", 0, 2, 5, 2),
    Sketcher.Constraint("Horizontal", 19, 2, 22, 2),
    Sketcher.Constraint("Horizontal", 25, 2, 28, 2),
    Sketcher.Constraint("Vertical", 1, 2, 13, 2),
    Sketcher.Constraint("Vertical", 22, 2, 25, 2),
    Sketcher.Constraint("Vertical", 20, 2, 27, 2),
    Sketcher.Constraint("Equal", 19, 23),
    Sketcher.Constraint("Equal", 27, 18),
    Sketcher.Constraint("DistanceX", 19, 1, 19, 2, 2.985709),
    Sketcher.Constraint("DistanceY", 26, 1, 26, 2, 3.107079),
    Sketcher.Constraint("DistanceX", 0, 1, 0, 2, 1.784004),
    Sketcher.Constraint("DistanceX", 21, 1, 21, 2, 1.109735),
    Sketcher.Constraint("DistanceY", 13, 1, 13, 2, 2.862534),
    Sketcher.Constraint("DistanceY", 20, 2, 20, 1, 3.131353),
    Sketcher.Constraint("DistanceY", 18, 2, -1, 1, 15.346391),
    Sketcher.Constraint("DistanceX", 21, 2, -1, 1, 42.182831),
])
pocket1 = body.newObject("PartDesign::Pocket", "Pocket")
pocket1.Profile = sketch2
pocket1.setExpression("Length", "Params.pocket1_length")

# Sketch on XY plane
sketch3 = body.newObject("Sketcher::SketchObject", "Sketch002")
sketch3.AttachmentSupport = (doc.getObject("XY_Plane"), [""])
sketch3.MapMode = "FlatFace"
sketch3.AttachmentOffset = App.Placement(Vector(0, 0, 3), App.Rotation())
sketch3.addGeometry([
    Part.Circle(Vector(-57.5, -7.5, 0), Vector(0, 0, 1), 1.7),
    Part.Circle(Vector(-35.5, -7.5, 0), Vector(0, 0, 1), 1.7),
], False)
sketch3.addConstraint([
    Sketcher.Constraint("Equal", 0, 1),
    Sketcher.Constraint("Horizontal", 0, 3, 1, 3),
    Sketcher.Constraint("Diameter", 0, 3.4),
    Sketcher.Constraint("DistanceX", 0, 3, -1, 1, 57.5),
    Sketcher.Constraint("DistanceY", 0, 3, -1, 1, 7.5),
    Sketcher.Constraint("DistanceX", 1, 3, -1, 1, 35.504729),
])
sketch3.setExpression("Constraints[2]", "Params.sketch3_diameter")
doc.recompute()
hole = body.newObject("PartDesign::Hole", "Hole")
hole.Profile = sketch3
hole.ThreadType = "None"
hole.setExpression("Diameter", "Params.hole_diameter")
hole.DepthType = "Dimension"
hole.setExpression("Depth", "Params.hole_depth")
hole.DrillPoint = "Angled"
hole.DrillPointAngle = 118
hole.HoleCutType = "Countersink"
hole.setExpression("HoleCutDiameter", "Params.hole_csink_diameter")
hole.HoleCutCountersinkAngle = 90

doc.recompute()
